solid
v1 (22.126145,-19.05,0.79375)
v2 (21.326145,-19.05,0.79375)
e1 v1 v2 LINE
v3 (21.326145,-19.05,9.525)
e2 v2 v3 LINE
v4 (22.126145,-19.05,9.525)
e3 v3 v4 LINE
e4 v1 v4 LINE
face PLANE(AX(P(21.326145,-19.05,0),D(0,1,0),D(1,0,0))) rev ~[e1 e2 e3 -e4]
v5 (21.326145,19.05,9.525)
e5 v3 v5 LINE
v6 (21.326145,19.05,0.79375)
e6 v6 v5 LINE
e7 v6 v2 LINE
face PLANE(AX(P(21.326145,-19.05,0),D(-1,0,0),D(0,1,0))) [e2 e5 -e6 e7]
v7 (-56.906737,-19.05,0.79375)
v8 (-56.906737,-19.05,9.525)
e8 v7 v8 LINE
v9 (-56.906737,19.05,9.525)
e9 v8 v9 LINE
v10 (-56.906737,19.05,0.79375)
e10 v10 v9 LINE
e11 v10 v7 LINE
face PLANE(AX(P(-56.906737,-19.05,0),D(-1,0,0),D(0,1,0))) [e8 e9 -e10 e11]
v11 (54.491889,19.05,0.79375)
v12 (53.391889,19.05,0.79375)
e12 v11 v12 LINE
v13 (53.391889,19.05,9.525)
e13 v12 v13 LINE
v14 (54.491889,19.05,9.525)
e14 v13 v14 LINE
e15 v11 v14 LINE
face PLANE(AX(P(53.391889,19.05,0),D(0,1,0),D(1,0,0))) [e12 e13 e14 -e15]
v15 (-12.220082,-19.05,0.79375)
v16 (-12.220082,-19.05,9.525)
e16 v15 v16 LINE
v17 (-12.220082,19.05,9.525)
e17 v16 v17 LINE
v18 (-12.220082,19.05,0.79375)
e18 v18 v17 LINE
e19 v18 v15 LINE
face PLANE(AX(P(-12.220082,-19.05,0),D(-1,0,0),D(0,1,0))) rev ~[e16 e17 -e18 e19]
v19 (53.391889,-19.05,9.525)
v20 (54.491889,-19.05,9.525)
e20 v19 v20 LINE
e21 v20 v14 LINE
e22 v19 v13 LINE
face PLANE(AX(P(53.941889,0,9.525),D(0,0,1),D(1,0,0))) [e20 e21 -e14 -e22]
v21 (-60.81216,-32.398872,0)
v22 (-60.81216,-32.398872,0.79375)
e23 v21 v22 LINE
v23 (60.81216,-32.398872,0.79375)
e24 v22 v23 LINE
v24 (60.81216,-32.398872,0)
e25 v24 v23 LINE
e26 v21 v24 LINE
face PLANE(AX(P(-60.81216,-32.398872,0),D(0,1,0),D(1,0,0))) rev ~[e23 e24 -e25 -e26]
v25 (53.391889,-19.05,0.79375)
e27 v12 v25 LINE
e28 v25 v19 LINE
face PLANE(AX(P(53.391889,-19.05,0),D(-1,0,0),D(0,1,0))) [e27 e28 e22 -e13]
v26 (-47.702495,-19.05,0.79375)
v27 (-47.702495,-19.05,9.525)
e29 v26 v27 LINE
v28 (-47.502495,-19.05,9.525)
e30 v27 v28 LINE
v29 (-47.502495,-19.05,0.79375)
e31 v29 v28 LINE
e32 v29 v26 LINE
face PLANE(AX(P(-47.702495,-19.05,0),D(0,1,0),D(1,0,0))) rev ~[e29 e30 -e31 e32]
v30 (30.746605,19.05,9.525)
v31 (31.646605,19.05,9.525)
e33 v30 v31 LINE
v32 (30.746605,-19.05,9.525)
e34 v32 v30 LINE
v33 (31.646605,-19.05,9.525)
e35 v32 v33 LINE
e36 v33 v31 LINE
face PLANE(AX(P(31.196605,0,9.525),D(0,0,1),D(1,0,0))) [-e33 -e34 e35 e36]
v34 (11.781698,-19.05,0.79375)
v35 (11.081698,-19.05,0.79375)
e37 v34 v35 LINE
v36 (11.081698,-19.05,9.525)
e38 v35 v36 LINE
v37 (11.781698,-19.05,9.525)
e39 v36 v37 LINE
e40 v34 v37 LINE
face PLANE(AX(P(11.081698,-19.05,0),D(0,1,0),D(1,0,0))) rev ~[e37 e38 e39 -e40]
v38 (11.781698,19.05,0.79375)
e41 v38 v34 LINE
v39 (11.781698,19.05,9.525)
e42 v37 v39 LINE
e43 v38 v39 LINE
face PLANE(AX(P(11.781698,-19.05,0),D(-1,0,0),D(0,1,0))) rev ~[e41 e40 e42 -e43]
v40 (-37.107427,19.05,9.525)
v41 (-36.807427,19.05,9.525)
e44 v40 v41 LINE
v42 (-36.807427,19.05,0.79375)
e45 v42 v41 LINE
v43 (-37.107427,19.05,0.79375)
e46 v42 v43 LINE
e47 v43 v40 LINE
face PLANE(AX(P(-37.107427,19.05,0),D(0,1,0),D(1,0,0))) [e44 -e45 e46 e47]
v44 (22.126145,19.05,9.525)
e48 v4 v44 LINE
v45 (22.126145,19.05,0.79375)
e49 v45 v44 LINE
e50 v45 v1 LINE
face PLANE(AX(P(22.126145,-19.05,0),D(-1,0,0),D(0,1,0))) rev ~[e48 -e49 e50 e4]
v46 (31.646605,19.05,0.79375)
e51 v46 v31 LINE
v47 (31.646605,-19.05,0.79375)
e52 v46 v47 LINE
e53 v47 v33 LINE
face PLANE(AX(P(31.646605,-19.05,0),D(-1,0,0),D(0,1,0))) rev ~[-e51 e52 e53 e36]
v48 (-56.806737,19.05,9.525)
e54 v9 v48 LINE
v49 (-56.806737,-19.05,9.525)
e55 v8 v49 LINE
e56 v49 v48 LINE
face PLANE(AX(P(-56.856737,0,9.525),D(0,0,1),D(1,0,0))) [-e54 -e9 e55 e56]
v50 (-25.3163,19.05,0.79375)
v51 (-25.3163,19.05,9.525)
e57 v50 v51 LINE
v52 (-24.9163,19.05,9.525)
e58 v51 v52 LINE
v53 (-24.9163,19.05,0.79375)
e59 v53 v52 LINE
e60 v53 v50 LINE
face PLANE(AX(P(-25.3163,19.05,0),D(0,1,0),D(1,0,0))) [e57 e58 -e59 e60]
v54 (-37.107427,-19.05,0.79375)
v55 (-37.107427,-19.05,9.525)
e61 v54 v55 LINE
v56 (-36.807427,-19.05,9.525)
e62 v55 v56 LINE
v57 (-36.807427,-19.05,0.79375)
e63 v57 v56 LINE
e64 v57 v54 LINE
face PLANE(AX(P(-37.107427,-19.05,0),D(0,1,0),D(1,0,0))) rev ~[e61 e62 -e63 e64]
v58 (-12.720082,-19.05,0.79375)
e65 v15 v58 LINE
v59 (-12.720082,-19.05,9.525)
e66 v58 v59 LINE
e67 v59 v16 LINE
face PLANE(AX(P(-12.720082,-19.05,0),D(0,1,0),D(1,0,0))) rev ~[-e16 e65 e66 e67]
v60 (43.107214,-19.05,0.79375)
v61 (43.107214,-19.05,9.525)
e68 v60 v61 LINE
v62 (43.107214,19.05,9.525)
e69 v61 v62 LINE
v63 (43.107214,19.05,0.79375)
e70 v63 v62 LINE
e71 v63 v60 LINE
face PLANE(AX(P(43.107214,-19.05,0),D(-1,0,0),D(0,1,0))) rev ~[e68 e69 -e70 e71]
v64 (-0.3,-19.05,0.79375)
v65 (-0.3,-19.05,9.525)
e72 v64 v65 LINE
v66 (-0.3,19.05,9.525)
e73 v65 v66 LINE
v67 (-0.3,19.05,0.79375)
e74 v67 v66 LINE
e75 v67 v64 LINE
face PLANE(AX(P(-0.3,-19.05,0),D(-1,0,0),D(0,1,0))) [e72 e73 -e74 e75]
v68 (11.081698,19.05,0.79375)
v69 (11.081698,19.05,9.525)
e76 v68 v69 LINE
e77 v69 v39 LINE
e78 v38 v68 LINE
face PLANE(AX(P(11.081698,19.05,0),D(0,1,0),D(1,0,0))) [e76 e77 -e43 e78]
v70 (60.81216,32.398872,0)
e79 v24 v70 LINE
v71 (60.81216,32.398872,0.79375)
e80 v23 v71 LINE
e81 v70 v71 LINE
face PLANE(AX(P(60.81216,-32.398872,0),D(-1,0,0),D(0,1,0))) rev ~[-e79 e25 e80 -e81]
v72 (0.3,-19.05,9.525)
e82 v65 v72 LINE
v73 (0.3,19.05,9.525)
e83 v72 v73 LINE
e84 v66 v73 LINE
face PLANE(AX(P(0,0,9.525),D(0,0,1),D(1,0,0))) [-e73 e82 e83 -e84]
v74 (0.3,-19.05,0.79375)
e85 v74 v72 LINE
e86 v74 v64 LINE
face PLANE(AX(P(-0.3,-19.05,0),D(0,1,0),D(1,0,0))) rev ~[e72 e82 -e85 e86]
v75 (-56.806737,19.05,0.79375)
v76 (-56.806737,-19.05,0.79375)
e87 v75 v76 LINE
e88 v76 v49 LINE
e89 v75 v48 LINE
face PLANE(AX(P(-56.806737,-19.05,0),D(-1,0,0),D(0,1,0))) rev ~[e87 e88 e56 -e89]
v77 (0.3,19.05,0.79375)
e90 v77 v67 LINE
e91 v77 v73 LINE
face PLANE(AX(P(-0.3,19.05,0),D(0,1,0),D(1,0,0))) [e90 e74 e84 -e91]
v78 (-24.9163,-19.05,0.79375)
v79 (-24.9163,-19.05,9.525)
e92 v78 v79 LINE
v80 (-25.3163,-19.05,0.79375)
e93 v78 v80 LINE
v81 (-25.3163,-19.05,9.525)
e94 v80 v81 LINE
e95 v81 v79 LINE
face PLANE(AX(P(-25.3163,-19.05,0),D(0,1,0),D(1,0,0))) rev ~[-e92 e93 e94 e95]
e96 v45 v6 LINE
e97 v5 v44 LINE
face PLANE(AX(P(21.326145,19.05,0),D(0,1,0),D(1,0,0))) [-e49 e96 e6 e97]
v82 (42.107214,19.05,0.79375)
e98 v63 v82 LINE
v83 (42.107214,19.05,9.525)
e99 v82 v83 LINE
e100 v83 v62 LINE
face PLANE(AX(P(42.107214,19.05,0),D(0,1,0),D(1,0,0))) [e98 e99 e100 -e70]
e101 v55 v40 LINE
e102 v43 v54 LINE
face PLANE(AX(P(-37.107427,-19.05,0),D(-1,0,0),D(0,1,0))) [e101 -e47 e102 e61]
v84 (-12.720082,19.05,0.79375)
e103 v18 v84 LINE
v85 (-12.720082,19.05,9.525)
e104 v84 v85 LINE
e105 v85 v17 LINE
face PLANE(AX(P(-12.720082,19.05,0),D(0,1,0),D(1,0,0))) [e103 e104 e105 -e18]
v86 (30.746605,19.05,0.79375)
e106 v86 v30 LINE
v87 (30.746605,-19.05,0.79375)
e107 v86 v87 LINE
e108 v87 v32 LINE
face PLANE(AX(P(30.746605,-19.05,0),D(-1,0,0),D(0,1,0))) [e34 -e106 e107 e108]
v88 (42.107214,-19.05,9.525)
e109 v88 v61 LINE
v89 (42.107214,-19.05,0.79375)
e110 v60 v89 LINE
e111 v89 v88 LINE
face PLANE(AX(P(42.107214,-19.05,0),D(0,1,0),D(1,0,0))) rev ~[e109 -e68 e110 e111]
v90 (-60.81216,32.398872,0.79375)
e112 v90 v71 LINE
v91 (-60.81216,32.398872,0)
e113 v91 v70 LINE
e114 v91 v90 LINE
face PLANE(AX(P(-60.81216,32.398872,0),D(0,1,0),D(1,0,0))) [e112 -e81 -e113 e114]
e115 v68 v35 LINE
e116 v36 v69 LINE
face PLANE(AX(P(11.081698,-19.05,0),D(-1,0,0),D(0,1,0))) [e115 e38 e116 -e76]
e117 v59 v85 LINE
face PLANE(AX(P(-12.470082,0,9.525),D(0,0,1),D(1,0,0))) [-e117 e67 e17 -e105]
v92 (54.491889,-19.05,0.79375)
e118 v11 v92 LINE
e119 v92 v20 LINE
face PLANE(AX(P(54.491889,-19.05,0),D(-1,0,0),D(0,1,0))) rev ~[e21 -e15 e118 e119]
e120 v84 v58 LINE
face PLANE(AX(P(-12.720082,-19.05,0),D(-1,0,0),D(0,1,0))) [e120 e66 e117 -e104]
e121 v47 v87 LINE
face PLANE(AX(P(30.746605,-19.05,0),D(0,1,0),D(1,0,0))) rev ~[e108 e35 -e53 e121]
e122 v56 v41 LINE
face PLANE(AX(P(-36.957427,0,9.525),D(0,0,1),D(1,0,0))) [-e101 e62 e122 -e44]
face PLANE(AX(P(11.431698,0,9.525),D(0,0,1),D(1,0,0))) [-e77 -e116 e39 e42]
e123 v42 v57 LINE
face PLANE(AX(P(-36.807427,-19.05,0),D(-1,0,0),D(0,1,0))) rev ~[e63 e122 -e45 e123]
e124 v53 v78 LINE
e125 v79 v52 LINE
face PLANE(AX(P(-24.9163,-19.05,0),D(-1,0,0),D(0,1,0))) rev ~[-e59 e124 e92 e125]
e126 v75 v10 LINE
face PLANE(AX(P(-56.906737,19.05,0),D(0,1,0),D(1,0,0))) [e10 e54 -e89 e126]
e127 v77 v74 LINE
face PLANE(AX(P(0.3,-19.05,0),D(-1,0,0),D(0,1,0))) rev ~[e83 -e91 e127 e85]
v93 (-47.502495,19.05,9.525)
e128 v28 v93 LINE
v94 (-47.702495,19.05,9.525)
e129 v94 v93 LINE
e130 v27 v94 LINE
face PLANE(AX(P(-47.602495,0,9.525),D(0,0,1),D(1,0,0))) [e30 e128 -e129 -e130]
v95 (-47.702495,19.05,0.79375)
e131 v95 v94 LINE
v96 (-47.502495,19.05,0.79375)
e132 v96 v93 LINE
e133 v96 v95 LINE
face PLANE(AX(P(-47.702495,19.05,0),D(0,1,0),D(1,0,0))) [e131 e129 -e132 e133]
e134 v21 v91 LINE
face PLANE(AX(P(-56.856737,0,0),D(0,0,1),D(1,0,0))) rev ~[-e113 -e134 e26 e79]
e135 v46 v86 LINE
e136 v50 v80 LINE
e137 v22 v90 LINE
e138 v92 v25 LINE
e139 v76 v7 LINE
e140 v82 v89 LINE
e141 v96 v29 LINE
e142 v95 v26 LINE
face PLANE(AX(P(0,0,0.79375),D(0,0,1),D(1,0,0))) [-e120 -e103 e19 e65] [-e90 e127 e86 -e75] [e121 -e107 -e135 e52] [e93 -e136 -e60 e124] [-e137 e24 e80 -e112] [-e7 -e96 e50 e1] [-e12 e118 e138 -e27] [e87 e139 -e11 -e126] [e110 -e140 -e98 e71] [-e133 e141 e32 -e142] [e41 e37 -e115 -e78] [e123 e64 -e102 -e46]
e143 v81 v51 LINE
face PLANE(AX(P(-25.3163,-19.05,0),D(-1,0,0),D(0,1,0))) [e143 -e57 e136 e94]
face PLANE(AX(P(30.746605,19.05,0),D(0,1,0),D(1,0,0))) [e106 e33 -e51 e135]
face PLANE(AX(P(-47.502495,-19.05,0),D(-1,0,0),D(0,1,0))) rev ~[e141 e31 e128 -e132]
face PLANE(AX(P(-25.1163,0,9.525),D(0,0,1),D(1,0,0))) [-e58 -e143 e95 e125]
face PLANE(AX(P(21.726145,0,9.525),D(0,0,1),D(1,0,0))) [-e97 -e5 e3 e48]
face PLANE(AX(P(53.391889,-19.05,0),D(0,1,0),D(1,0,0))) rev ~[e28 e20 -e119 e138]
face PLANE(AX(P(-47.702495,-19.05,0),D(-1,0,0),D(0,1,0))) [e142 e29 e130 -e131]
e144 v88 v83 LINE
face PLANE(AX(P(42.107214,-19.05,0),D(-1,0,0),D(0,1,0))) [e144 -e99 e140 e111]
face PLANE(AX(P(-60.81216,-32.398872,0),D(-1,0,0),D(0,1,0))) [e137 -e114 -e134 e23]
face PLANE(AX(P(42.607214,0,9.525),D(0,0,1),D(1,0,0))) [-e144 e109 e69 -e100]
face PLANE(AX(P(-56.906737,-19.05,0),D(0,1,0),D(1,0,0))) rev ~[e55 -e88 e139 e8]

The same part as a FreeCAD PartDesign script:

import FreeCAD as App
import Part
import Sketcher
from FreeCAD import Vector


def add_polygon(sketch, points):
    """Adds a closed chain of lines whose ends are joined by coincident constraints."""
    first, n = sketch.GeometryCount, len(points)
    for a, b in zip(points, points[1:] + points[:1]):
        sketch.addGeometry(Part.LineSegment(App.Vector(*a, 0), App.Vector(*b, 0)), False)
    for i in range(n):
        sketch.addConstraint(Sketcher.Constraint("Coincident", first + i, 2, first + (i + 1) % n, 1))

doc = App.newDocument("Part")
body = doc.addObject("PartDesign::Body", "Body")

# Sketch on XY plane
sketch1 = body.newObject("Sketcher::SketchObject", "Sketch")
sketch1.AttachmentSupport = (doc.getObject("XY_Plane"), [""])
sketch1.MapMode = "FlatFace"
add_polygon(sketch1, [(-61, 32), (-61, -32), (61, -32), (61, 32)])  # lines 0-3
sketch1.addConstraint(Sketcher.Constraint("Vertical", 0))
sketch1.addConstraint(Sketcher.Constraint("Horizontal", 1))
sketch1.addConstraint(Sketcher.Constraint("Vertical", 2))
sketch1.addConstraint(Sketcher.Constraint("Horizontal", 3))
sketch1.addConstraint(Sketcher.Constraint("Symmetric", 0, 2, 2, 2, -1, 1))
sketch1.addConstraint(Sketcher.Constraint("DistanceX", 1, 1, 1, 2, 121.62432))
sketch1.addConstraint(Sketcher.Constraint("DistanceY", 0, 2, 0, 1, 64.797744))
pad1 = body.newObject("PartDesign::Pad", "Pad")
pad1.Profile = sketch1
pad1.Length = 0.79375

# Sketch on XY plane
sketch2 = body.newObject("Sketcher::SketchObject", "Sketch001")
sketch2.AttachmentSupport = (doc.getObject("XY_Plane"), [""])
sketch2.MapMode = "FlatFace"
add_polygon(sketch2, [(-56.91, 19.05), (-56.91, -19.05), (-56.81, -19.05), (-56.81, 19.05)])  # lines 0-3
add_polygon(sketch2, [(-47.7, 19.05), (-47.7, -19.05), (-47.5, -19.05), (-47.5, 19.05)])  # lines 4-7
add_polygon(sketch2, [(-37.11, 19.05), (-37.11, -19.05), (-36.81, -19.05), (-36.81, 19.05)])  # lines 8-11
add_polygon(sketch2, [(-25.32, 19.05), (-25.32, -19.05), (-24.92, -19.05), (-24.92, 19.05)])  # lines 12-15
add_polygon(sketch2, [(-12.72, 19.05), (-12.72, -19.05), (-12.22, -19.05), (-12.22, 19.05)])  # lines 16-19
add_polygon(sketch2, [(-0.3, 19.05), (-0.3, -19.05), (0.3, -19.05), (0.3, 19.05)])  # lines 20-23
add_polygon(sketch2, [(11.08, 19.05), (11.08, -19.05), (11.78, -19.05), (11.78, 19.05)])  # lines 24-27
add_polygon(sketch2, [(21.33, 19.05), (21.33, -19.05), (22.13, -19.05), (22.13, 19.05)])  # lines 28-31
add_polygon(sketch2, [(30.75, 19.05), (30.75, -19.05), (31.65, -19.05), (31.65, 19.05)])  # lines 32-35
add_polygon(sketch2, [(42.11, 19.05), (42.11, -19.05), (43.11, -19.05), (43.11, 19.05)])  # lines 36-39
add_polygon(sketch2, [(53.39, 19.05), (53.39, -19.05), (54.49, -19.05), (54.49, 19.05)])  # lines 40-43
sketch2.addConstraint(Sketcher.Constraint("Vertical", 0))
sketch2.addConstraint(Sketcher.Constraint("Horizontal", 1))
sketch2.addConstraint(Sketcher.Constraint("Vertical", 2))
sketch2.addConstraint(Sketcher.Constraint("Horizontal", 3))
sketch2.addConstraint(Sketcher.Constraint("Vertical", 4))
sketch2.addConstraint(Sketcher.Constraint("Horizontal", 5))
sketch2.addConstraint(Sketcher.Constraint("Vertical", 6))
sketch2.addConstraint(Sketcher.Constraint("Horizontal", 7))
sketch2.addConstraint(Sketcher.Constraint("Vertical", 8))
sketch2.addConstraint(Sketcher.Constraint("Horizontal", 9))
sketch2.addConstraint(Sketcher.Constraint("Vertical", 10))
sketch2.addConstraint(Sketcher.Constraint("Horizontal", 11))
sketch2.addConstraint(Sketcher.Constraint("Vertical", 12))
sketch2.addConstraint(Sketcher.Constraint("Horizontal", 13))
sketch2.addConstraint(Sketcher.Constraint("Vertical", 14))
sketch2.addConstraint(Sketcher.Constraint("Horizontal", 15))
sketch2.addConstraint(Sketcher.Constraint("Vertical", 16))
sketch2.addConstraint(Sketcher.Constraint("Horizontal", 17))
sketch2.addConstraint(Sketcher.Constraint("Vertical", 18))
sketch2.addConstraint(Sketcher.Constraint("Horizontal", 19))
sketch2.addConstraint(Sketcher.Constraint("Vertical", 20))
sketch2.addConstraint(Sketcher.Constraint("Horizontal", 21))
sketch2.addConstraint(Sketcher.Constraint("Vertical", 22))
sketch2.addConstraint(Sketcher.Constraint("Horizontal", 23))
sketch2.addConstraint(Sketcher.Constraint("Vertical", 24))
sketch2.addConstraint(Sketcher.Constraint("Horizontal", 25))
sketch2.addConstraint(Sketcher.Constraint("Vertical", 26))
sketch2.addConstraint(Sketcher.Constraint("Horizontal", 27))
sketch2.addConstraint(Sketcher.Constraint("Vertical", 28))
sketch2.addConstraint(Sketcher.Constraint("Horizontal", 29))
sketch2.addConstraint(Sketcher.Constraint("Vertical", 30))
sketch2.addConstraint(Sketcher.Constraint("Horizontal", 31))
sketch2.addConstraint(Sketcher.Constraint("Vertical", 32))
sketch2.addConstraint(Sketcher.Constraint("Horizontal", 33))
sketch2.addConstraint(Sketcher.Constraint("Vertical", 34))
sketch2.addConstraint(Sketcher.Constraint("Horizontal", 35))
sketch2.addConstraint(Sketcher.Constraint("Vertical", 36))
sketch2.addConstraint(Sketcher.Constraint("Horizontal", 37))
sketch2.addConstraint(Sketcher.Constraint("Vertical", 38))
sketch2.addConstraint(Sketcher.Constraint("Horizontal", 39))
sketch2.addConstraint(Sketcher.Constraint("Vertical", 40))
sketch2.addConstraint(Sketcher.Constraint("Horizontal", 41))
sketch2.addConstraint(Sketcher.Constraint("Vertical", 42))
sketch2.addConstraint(Sketcher.Constraint("Horizontal", 43))
sketch2.addConstraint(Sketcher.Constraint("Symmetric", 20, 2, 22, 2, -1, 1))
sketch2.addConstraint(Sketcher.Constraint("Horizontal", 1, 2, 4, 2))
sketch2.addConstraint(Sketcher.Constraint("Horizontal", 3, 2, 6, 2))
sketch2.addConstraint(Sketcher.Constraint("Horizontal", 5, 2, 8, 2))
sketch2.addConstraint(Sketcher.Constraint("Horizontal", 7, 2, 10, 2))
sketch2.addConstraint(Sketcher.Constraint("Horizontal", 9, 2, 12, 2))
sketch2.addConstraint(Sketcher.Constraint("Horizontal", 11, 2, 14, 2))
sketch2.addConstraint(Sketcher.Constraint("Horizontal", 13, 2, 16, 2))
sketch2.addConstraint(Sketcher.Constraint("Horizontal", 15, 2, 18, 2))
sketch2.addConstraint(Sketcher.Constraint("Horizontal", 17, 2, 20, 2))
sketch2.addConstraint(Sketcher.Constraint("Horizontal", 19, 2, 22, 2))
sketch2.addConstraint(Sketcher.Constraint("Horizontal", 21, 2, 24, 2))
sketch2.addConstraint(Sketcher.Constraint("Horizontal", 23, 2, 26, 2))
sketch2.addConstraint(Sketcher.Constraint("Horizontal", 25, 2, 28, 2))
sketch2.addConstraint(Sketcher.Constraint("Horizontal", 27, 2, 30, 2))
sketch2.addConstraint(Sketcher.Constraint("Horizontal", 29, 2, 32, 2))
sketch2.addConstraint(Sketcher.Constraint("Horizontal", 31, 2, 34, 2))
sketch2.addConstraint(Sketcher.Constraint("Horizontal", 33, 2, 36, 2))
sketch2.addConstraint(Sketcher.Constraint("Horizontal", 35, 2, 38, 2))
sketch2.addConstraint(Sketcher.Constraint("Horizontal", 37, 2, 40, 2))
sketch2.addConstraint(Sketcher.Constraint("Horizontal", 39, 2, 42, 2))
sketch2.addConstraint(Sketcher.Constraint("DistanceX", 37, 1, 37, 2, 1.0))
sketch2.addConstraint(Sketcher.Constraint("DistanceX", 1, 1, 1, 2, 0.1))
sketch2.addConstraint(Sketcher.Constraint("DistanceX", 5, 1, 5, 2, 0.2))
sketch2.addConstraint(Sketcher.Constraint("DistanceX", 9, 1, 9, 2, 0.3))
sketch2.addConstraint(Sketcher.Constraint("DistanceX", 13, 1, 13, 2, 0.4))
sketch2.addConstraint(Sketcher.Constraint("DistanceX", 17, 1, 17, 2, 0.5))
sketch2.addConstraint(Sketcher.Constraint("DistanceX", 21, 1, 21, 2, 0.6))
sketch2.addConstraint(Sketcher.Constraint("DistanceX", 25, 1, 25, 2, 0.7))
sketch2.addConstraint(Sketcher.Constraint("DistanceX", 29, 1, 29, 2, 0.8))
sketch2.addConstraint(Sketcher.Constraint("DistanceX", 33, 1, 33, 2, 0.9))
sketch2.addConstraint(Sketcher.Constraint("DistanceX", 41, 1, 41, 2, 1.1))
sketch2.addConstraint(Sketcher.Constraint("DistanceY", 0, 2, 0, 1, 38.1))
sketch2.addConstraint(Sketcher.Constraint("DistanceX", 12, 2, -1, 1, 25.3163))
sketch2.addConstraint(Sketcher.Constraint("DistanceX", 20, 2, 25, 2, 12.081698))
sketch2.addConstraint(Sketcher.Constraint("DistanceX", -1, 1, 40, 2, 53.391889))
sketch2.addConstraint(Sketcher.Constraint("DistanceX", 1, 2, 4, 2, 9.104242))
sketch2.addConstraint(Sketcher.Constraint("DistanceX", 5, 2, 8, 2, 10.395068))
sketch2.addConstraint(Sketcher.Constraint("DistanceX", 17, 2, 20, 2, 11.920082))
sketch2.addConstraint(Sketcher.Constraint("DistanceX", 29, 2, 32, 2, 8.62046))
sketch2.addConstraint(Sketcher.Constraint("DistanceX", 33, 2, 36, 2, 10.460609))
sketch2.addConstraint(Sketcher.Constraint("DistanceX", 0, 2, -1, 1, 56.906737))
sketch2.addConstraint(Sketcher.Constraint("DistanceX", -1, 1, 28, 2, 21.326145))
pad2 = body.newObject("PartDesign::Pad", "Pad001")
pad2.Profile = sketch2
pad2.Length = 9.525

doc.recompute()
